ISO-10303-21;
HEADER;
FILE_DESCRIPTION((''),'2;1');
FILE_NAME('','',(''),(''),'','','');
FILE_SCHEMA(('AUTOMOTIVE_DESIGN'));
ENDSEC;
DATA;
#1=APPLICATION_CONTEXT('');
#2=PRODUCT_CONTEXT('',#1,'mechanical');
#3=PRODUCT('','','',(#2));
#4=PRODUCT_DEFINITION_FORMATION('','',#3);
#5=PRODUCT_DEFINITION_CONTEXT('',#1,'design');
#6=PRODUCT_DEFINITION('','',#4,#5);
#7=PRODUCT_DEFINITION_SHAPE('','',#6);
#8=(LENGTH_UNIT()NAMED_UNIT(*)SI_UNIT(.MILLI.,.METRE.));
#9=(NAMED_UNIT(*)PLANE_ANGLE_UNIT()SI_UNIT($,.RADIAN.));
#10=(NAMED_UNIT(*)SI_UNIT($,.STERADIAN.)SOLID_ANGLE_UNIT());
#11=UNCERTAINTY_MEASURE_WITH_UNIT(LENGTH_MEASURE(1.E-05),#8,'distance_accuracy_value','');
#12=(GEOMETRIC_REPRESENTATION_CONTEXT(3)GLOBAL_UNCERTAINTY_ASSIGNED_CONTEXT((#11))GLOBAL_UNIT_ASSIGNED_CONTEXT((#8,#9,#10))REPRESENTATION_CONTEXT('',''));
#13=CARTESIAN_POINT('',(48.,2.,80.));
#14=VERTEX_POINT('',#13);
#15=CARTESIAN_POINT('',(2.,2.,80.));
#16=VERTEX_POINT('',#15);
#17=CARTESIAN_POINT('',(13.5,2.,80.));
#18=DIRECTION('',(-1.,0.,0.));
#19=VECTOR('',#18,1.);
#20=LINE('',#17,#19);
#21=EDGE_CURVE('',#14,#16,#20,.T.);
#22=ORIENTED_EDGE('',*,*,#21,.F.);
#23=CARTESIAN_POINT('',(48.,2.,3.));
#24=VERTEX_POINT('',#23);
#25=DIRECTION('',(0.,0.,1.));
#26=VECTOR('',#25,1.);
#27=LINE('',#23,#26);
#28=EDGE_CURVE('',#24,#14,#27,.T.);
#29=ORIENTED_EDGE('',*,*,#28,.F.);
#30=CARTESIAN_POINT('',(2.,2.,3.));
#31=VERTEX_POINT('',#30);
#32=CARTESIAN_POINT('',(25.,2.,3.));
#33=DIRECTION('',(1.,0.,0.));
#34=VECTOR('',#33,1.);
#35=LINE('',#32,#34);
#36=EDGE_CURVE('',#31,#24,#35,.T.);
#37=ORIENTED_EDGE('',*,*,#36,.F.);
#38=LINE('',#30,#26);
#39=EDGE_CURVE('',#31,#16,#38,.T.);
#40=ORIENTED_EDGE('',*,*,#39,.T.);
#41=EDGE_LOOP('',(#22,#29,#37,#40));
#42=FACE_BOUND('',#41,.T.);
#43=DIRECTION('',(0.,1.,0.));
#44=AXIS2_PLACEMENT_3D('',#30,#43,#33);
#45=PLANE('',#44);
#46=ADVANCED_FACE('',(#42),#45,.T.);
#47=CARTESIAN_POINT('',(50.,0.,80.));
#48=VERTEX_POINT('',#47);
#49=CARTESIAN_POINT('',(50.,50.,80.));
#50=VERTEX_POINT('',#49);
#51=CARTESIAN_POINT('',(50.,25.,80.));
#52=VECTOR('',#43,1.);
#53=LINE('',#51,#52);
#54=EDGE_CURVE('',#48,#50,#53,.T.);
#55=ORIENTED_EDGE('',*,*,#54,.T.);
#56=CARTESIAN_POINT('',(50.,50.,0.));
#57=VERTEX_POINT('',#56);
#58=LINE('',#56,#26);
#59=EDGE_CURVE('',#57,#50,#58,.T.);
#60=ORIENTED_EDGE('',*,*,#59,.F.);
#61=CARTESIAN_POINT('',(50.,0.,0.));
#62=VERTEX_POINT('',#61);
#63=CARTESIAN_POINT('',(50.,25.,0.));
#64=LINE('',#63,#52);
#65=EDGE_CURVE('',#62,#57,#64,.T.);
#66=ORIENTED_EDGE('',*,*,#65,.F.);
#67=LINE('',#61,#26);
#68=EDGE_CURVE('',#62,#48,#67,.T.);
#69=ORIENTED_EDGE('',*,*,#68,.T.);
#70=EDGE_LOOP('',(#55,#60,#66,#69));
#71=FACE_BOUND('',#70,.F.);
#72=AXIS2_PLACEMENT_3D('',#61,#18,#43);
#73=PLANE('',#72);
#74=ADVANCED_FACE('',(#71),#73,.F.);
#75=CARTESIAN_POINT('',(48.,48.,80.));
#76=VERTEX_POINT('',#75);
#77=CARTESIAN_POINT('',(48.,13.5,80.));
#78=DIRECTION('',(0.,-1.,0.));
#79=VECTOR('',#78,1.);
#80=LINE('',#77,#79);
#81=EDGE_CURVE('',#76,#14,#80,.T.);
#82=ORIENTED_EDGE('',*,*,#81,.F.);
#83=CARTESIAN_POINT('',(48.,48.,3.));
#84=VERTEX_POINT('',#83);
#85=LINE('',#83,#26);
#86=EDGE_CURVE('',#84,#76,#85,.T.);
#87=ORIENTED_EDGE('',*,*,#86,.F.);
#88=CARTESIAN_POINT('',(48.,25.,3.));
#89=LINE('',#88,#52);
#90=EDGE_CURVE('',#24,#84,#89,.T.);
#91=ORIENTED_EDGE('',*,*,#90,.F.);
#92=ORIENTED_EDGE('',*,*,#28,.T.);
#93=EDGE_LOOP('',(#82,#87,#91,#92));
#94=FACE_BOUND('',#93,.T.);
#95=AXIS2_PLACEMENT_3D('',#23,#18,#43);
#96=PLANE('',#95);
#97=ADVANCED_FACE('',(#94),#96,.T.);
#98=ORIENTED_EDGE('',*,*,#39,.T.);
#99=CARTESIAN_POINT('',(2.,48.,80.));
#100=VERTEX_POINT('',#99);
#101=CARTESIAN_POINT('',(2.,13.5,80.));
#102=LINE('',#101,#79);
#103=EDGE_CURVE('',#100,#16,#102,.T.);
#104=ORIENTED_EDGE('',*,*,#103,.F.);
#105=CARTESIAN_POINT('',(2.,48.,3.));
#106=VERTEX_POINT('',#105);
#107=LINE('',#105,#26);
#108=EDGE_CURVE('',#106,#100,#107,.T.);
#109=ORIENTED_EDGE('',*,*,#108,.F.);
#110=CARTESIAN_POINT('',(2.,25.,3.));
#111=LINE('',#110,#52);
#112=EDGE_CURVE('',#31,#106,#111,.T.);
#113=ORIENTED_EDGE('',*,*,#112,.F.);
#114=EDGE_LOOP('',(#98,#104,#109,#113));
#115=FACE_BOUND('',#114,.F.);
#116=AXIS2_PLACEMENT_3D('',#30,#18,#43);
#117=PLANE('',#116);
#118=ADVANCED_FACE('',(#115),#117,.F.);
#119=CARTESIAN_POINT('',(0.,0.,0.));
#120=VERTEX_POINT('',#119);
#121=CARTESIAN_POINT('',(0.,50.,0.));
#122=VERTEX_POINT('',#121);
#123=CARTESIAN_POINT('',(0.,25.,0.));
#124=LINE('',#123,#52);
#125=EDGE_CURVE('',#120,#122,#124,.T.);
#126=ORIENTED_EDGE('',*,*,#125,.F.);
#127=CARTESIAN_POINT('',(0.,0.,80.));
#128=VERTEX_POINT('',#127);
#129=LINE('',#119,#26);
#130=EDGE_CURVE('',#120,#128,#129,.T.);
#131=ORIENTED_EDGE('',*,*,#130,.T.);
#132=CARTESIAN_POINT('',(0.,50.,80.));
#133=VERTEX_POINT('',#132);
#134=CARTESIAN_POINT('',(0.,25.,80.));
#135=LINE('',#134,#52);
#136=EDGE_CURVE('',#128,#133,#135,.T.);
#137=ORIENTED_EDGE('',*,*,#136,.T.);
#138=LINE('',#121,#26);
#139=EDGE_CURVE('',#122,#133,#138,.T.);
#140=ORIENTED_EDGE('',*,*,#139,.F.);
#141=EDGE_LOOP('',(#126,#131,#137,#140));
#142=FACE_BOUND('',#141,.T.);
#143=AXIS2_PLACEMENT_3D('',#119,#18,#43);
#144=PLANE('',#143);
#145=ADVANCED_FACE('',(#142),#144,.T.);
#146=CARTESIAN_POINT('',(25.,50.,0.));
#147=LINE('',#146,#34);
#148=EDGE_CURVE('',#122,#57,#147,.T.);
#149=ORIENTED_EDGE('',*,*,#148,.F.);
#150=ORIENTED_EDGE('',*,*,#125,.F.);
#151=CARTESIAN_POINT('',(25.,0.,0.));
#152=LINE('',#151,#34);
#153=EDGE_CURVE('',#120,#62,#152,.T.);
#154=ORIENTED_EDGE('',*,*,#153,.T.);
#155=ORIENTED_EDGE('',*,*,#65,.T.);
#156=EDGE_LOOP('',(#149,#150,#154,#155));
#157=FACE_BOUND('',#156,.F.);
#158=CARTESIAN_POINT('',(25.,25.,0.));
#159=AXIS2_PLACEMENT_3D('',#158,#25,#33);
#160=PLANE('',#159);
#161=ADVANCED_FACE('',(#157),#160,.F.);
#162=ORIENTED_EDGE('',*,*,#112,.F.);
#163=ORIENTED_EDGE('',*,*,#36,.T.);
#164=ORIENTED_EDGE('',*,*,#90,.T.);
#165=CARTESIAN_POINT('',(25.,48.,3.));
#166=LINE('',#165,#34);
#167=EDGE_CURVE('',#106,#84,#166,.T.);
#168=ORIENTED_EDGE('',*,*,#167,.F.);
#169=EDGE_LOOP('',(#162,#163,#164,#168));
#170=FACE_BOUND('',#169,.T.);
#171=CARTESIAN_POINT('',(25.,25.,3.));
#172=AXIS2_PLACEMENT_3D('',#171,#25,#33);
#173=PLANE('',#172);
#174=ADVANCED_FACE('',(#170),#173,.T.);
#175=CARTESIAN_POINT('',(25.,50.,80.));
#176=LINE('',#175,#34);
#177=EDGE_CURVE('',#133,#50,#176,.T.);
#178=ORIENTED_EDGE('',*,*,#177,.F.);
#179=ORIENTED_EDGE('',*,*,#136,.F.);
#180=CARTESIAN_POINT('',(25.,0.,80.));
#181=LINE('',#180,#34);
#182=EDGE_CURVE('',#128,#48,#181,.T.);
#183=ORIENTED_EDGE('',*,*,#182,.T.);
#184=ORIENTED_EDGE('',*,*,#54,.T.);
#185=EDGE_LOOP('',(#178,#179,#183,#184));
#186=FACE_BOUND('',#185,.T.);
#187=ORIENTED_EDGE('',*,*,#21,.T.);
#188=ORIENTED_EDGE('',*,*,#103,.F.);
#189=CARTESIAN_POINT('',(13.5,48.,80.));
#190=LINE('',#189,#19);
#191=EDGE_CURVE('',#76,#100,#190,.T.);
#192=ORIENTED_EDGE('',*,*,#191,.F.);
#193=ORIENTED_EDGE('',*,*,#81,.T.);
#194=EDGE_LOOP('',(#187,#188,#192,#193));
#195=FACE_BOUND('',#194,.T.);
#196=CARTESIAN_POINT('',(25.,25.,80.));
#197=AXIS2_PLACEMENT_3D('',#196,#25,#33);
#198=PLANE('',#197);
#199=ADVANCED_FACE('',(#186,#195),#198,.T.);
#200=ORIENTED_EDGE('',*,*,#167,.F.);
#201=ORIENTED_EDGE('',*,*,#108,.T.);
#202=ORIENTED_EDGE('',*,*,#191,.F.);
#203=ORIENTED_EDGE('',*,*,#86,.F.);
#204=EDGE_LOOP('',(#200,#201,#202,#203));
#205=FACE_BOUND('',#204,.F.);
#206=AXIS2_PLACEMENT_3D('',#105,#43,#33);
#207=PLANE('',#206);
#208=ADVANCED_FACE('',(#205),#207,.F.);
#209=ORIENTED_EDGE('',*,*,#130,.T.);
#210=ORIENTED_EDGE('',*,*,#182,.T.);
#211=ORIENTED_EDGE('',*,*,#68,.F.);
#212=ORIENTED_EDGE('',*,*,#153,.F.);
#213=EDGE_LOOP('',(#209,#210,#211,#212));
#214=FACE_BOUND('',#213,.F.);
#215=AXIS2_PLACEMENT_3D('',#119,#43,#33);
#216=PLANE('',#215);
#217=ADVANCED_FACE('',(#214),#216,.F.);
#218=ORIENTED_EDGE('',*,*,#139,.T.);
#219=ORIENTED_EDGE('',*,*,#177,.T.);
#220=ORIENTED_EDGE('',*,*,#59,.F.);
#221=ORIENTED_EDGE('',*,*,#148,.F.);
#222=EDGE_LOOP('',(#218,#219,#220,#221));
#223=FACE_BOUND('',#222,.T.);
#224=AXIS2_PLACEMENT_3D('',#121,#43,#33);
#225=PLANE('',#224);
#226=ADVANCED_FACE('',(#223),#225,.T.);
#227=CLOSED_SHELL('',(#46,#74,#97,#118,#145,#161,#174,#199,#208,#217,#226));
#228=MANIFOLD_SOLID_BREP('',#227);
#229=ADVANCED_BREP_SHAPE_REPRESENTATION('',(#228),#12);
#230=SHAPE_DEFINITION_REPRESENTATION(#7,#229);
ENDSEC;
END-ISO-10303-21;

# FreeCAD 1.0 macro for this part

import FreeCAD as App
import Part
import Sketcher

V = App.Vector


def add_polygon(sketch, points):
    """Adds a closed chain of lines whose ends are joined by coincident constraints."""
    first, n = sketch.GeometryCount, len(points)
    for a, b in zip(points, points[1:] + points[:1]):
        sketch.addGeometry(Part.LineSegment(App.Vector(*a, 0), App.Vector(*b, 0)), False)
    for i in range(n):
        sketch.addConstraint(Sketcher.Constraint("Coincident", first + i, 2, first + (i + 1) % n, 1))

doc = App.newDocument("Part")
body = doc.addObject("PartDesign::Body", "Body")

# Sketch on XY plane
sketch1 = body.newObject("Sketcher::SketchObject", "Sketch")
sketch1.AttachmentSupport = (doc.getObject("XY_Plane"), [""])
sketch1.MapMode = "FlatFace"
sketch1.AttachmentOffset = App.Placement(V(0, 0, 3), App.Rotation())
add_polygon(sketch1, [(2, 48), (2, 2), (48, 2), (48, 48)])  # lines 0-3
sketch1.addConstraint([
    Sketcher.Constraint("Vertical", 0),
    Sketcher.Constraint("Horizontal", 1),
    Sketcher.Constraint("Vertical", 2),
    Sketcher.Constraint("Horizontal", 3),
    Sketcher.Constraint("Equal", 3, 0),
    Sketcher.Constraint("DistanceX", 1, 1, 1, 2, 46.0),
    Sketcher.Constraint("DistanceX", -1, 1, 0, 2, 2.0),
    Sketcher.Constraint("DistanceY", -1, 1, 0, 2, 2.0),
])
pad1 = body.newObject("PartDesign::Pad", "Pad")
pad1.Profile = sketch1
pad1.Length = 80
body2 = doc.addObject("PartDesign::Body", "Body001")

# Sketch on XY plane
sketch2 = body2.newObject("Sketcher::SketchObject", "Sketch001")
sketch2.AttachmentSupport = (doc.getObject("XY_Plane001"), [""])
sketch2.MapMode = "FlatFace"
add_polygon(sketch2, [(0, 50), (0, 0), (50, 0), (50, 50)])  # lines 0-3
sketch2.addConstraint([
    Sketcher.Constraint("Vertical", 0),
    Sketcher.Constraint("Horizontal", 1),
    Sketcher.Constraint("Vertical", 2),
    Sketcher.Constraint("Horizontal", 3),
    Sketcher.Constraint("Coincident", 0, 2, -1, 1),
    Sketcher.Constraint("Equal", 3, 0),
    Sketcher.Constraint("DistanceX", 1, 1, 1, 2, 50.0),
])
pad2 = body2.newObject("PartDesign::Pad", "Pad001")
pad2.Profile = sketch2
pad2.Length = 80
doc.recompute()

boolean = body2.newObject("PartDesign::Boolean", "Boolean")
boolean.Type = "Cut"
boolean.addObjects([body])

doc.recompute()
